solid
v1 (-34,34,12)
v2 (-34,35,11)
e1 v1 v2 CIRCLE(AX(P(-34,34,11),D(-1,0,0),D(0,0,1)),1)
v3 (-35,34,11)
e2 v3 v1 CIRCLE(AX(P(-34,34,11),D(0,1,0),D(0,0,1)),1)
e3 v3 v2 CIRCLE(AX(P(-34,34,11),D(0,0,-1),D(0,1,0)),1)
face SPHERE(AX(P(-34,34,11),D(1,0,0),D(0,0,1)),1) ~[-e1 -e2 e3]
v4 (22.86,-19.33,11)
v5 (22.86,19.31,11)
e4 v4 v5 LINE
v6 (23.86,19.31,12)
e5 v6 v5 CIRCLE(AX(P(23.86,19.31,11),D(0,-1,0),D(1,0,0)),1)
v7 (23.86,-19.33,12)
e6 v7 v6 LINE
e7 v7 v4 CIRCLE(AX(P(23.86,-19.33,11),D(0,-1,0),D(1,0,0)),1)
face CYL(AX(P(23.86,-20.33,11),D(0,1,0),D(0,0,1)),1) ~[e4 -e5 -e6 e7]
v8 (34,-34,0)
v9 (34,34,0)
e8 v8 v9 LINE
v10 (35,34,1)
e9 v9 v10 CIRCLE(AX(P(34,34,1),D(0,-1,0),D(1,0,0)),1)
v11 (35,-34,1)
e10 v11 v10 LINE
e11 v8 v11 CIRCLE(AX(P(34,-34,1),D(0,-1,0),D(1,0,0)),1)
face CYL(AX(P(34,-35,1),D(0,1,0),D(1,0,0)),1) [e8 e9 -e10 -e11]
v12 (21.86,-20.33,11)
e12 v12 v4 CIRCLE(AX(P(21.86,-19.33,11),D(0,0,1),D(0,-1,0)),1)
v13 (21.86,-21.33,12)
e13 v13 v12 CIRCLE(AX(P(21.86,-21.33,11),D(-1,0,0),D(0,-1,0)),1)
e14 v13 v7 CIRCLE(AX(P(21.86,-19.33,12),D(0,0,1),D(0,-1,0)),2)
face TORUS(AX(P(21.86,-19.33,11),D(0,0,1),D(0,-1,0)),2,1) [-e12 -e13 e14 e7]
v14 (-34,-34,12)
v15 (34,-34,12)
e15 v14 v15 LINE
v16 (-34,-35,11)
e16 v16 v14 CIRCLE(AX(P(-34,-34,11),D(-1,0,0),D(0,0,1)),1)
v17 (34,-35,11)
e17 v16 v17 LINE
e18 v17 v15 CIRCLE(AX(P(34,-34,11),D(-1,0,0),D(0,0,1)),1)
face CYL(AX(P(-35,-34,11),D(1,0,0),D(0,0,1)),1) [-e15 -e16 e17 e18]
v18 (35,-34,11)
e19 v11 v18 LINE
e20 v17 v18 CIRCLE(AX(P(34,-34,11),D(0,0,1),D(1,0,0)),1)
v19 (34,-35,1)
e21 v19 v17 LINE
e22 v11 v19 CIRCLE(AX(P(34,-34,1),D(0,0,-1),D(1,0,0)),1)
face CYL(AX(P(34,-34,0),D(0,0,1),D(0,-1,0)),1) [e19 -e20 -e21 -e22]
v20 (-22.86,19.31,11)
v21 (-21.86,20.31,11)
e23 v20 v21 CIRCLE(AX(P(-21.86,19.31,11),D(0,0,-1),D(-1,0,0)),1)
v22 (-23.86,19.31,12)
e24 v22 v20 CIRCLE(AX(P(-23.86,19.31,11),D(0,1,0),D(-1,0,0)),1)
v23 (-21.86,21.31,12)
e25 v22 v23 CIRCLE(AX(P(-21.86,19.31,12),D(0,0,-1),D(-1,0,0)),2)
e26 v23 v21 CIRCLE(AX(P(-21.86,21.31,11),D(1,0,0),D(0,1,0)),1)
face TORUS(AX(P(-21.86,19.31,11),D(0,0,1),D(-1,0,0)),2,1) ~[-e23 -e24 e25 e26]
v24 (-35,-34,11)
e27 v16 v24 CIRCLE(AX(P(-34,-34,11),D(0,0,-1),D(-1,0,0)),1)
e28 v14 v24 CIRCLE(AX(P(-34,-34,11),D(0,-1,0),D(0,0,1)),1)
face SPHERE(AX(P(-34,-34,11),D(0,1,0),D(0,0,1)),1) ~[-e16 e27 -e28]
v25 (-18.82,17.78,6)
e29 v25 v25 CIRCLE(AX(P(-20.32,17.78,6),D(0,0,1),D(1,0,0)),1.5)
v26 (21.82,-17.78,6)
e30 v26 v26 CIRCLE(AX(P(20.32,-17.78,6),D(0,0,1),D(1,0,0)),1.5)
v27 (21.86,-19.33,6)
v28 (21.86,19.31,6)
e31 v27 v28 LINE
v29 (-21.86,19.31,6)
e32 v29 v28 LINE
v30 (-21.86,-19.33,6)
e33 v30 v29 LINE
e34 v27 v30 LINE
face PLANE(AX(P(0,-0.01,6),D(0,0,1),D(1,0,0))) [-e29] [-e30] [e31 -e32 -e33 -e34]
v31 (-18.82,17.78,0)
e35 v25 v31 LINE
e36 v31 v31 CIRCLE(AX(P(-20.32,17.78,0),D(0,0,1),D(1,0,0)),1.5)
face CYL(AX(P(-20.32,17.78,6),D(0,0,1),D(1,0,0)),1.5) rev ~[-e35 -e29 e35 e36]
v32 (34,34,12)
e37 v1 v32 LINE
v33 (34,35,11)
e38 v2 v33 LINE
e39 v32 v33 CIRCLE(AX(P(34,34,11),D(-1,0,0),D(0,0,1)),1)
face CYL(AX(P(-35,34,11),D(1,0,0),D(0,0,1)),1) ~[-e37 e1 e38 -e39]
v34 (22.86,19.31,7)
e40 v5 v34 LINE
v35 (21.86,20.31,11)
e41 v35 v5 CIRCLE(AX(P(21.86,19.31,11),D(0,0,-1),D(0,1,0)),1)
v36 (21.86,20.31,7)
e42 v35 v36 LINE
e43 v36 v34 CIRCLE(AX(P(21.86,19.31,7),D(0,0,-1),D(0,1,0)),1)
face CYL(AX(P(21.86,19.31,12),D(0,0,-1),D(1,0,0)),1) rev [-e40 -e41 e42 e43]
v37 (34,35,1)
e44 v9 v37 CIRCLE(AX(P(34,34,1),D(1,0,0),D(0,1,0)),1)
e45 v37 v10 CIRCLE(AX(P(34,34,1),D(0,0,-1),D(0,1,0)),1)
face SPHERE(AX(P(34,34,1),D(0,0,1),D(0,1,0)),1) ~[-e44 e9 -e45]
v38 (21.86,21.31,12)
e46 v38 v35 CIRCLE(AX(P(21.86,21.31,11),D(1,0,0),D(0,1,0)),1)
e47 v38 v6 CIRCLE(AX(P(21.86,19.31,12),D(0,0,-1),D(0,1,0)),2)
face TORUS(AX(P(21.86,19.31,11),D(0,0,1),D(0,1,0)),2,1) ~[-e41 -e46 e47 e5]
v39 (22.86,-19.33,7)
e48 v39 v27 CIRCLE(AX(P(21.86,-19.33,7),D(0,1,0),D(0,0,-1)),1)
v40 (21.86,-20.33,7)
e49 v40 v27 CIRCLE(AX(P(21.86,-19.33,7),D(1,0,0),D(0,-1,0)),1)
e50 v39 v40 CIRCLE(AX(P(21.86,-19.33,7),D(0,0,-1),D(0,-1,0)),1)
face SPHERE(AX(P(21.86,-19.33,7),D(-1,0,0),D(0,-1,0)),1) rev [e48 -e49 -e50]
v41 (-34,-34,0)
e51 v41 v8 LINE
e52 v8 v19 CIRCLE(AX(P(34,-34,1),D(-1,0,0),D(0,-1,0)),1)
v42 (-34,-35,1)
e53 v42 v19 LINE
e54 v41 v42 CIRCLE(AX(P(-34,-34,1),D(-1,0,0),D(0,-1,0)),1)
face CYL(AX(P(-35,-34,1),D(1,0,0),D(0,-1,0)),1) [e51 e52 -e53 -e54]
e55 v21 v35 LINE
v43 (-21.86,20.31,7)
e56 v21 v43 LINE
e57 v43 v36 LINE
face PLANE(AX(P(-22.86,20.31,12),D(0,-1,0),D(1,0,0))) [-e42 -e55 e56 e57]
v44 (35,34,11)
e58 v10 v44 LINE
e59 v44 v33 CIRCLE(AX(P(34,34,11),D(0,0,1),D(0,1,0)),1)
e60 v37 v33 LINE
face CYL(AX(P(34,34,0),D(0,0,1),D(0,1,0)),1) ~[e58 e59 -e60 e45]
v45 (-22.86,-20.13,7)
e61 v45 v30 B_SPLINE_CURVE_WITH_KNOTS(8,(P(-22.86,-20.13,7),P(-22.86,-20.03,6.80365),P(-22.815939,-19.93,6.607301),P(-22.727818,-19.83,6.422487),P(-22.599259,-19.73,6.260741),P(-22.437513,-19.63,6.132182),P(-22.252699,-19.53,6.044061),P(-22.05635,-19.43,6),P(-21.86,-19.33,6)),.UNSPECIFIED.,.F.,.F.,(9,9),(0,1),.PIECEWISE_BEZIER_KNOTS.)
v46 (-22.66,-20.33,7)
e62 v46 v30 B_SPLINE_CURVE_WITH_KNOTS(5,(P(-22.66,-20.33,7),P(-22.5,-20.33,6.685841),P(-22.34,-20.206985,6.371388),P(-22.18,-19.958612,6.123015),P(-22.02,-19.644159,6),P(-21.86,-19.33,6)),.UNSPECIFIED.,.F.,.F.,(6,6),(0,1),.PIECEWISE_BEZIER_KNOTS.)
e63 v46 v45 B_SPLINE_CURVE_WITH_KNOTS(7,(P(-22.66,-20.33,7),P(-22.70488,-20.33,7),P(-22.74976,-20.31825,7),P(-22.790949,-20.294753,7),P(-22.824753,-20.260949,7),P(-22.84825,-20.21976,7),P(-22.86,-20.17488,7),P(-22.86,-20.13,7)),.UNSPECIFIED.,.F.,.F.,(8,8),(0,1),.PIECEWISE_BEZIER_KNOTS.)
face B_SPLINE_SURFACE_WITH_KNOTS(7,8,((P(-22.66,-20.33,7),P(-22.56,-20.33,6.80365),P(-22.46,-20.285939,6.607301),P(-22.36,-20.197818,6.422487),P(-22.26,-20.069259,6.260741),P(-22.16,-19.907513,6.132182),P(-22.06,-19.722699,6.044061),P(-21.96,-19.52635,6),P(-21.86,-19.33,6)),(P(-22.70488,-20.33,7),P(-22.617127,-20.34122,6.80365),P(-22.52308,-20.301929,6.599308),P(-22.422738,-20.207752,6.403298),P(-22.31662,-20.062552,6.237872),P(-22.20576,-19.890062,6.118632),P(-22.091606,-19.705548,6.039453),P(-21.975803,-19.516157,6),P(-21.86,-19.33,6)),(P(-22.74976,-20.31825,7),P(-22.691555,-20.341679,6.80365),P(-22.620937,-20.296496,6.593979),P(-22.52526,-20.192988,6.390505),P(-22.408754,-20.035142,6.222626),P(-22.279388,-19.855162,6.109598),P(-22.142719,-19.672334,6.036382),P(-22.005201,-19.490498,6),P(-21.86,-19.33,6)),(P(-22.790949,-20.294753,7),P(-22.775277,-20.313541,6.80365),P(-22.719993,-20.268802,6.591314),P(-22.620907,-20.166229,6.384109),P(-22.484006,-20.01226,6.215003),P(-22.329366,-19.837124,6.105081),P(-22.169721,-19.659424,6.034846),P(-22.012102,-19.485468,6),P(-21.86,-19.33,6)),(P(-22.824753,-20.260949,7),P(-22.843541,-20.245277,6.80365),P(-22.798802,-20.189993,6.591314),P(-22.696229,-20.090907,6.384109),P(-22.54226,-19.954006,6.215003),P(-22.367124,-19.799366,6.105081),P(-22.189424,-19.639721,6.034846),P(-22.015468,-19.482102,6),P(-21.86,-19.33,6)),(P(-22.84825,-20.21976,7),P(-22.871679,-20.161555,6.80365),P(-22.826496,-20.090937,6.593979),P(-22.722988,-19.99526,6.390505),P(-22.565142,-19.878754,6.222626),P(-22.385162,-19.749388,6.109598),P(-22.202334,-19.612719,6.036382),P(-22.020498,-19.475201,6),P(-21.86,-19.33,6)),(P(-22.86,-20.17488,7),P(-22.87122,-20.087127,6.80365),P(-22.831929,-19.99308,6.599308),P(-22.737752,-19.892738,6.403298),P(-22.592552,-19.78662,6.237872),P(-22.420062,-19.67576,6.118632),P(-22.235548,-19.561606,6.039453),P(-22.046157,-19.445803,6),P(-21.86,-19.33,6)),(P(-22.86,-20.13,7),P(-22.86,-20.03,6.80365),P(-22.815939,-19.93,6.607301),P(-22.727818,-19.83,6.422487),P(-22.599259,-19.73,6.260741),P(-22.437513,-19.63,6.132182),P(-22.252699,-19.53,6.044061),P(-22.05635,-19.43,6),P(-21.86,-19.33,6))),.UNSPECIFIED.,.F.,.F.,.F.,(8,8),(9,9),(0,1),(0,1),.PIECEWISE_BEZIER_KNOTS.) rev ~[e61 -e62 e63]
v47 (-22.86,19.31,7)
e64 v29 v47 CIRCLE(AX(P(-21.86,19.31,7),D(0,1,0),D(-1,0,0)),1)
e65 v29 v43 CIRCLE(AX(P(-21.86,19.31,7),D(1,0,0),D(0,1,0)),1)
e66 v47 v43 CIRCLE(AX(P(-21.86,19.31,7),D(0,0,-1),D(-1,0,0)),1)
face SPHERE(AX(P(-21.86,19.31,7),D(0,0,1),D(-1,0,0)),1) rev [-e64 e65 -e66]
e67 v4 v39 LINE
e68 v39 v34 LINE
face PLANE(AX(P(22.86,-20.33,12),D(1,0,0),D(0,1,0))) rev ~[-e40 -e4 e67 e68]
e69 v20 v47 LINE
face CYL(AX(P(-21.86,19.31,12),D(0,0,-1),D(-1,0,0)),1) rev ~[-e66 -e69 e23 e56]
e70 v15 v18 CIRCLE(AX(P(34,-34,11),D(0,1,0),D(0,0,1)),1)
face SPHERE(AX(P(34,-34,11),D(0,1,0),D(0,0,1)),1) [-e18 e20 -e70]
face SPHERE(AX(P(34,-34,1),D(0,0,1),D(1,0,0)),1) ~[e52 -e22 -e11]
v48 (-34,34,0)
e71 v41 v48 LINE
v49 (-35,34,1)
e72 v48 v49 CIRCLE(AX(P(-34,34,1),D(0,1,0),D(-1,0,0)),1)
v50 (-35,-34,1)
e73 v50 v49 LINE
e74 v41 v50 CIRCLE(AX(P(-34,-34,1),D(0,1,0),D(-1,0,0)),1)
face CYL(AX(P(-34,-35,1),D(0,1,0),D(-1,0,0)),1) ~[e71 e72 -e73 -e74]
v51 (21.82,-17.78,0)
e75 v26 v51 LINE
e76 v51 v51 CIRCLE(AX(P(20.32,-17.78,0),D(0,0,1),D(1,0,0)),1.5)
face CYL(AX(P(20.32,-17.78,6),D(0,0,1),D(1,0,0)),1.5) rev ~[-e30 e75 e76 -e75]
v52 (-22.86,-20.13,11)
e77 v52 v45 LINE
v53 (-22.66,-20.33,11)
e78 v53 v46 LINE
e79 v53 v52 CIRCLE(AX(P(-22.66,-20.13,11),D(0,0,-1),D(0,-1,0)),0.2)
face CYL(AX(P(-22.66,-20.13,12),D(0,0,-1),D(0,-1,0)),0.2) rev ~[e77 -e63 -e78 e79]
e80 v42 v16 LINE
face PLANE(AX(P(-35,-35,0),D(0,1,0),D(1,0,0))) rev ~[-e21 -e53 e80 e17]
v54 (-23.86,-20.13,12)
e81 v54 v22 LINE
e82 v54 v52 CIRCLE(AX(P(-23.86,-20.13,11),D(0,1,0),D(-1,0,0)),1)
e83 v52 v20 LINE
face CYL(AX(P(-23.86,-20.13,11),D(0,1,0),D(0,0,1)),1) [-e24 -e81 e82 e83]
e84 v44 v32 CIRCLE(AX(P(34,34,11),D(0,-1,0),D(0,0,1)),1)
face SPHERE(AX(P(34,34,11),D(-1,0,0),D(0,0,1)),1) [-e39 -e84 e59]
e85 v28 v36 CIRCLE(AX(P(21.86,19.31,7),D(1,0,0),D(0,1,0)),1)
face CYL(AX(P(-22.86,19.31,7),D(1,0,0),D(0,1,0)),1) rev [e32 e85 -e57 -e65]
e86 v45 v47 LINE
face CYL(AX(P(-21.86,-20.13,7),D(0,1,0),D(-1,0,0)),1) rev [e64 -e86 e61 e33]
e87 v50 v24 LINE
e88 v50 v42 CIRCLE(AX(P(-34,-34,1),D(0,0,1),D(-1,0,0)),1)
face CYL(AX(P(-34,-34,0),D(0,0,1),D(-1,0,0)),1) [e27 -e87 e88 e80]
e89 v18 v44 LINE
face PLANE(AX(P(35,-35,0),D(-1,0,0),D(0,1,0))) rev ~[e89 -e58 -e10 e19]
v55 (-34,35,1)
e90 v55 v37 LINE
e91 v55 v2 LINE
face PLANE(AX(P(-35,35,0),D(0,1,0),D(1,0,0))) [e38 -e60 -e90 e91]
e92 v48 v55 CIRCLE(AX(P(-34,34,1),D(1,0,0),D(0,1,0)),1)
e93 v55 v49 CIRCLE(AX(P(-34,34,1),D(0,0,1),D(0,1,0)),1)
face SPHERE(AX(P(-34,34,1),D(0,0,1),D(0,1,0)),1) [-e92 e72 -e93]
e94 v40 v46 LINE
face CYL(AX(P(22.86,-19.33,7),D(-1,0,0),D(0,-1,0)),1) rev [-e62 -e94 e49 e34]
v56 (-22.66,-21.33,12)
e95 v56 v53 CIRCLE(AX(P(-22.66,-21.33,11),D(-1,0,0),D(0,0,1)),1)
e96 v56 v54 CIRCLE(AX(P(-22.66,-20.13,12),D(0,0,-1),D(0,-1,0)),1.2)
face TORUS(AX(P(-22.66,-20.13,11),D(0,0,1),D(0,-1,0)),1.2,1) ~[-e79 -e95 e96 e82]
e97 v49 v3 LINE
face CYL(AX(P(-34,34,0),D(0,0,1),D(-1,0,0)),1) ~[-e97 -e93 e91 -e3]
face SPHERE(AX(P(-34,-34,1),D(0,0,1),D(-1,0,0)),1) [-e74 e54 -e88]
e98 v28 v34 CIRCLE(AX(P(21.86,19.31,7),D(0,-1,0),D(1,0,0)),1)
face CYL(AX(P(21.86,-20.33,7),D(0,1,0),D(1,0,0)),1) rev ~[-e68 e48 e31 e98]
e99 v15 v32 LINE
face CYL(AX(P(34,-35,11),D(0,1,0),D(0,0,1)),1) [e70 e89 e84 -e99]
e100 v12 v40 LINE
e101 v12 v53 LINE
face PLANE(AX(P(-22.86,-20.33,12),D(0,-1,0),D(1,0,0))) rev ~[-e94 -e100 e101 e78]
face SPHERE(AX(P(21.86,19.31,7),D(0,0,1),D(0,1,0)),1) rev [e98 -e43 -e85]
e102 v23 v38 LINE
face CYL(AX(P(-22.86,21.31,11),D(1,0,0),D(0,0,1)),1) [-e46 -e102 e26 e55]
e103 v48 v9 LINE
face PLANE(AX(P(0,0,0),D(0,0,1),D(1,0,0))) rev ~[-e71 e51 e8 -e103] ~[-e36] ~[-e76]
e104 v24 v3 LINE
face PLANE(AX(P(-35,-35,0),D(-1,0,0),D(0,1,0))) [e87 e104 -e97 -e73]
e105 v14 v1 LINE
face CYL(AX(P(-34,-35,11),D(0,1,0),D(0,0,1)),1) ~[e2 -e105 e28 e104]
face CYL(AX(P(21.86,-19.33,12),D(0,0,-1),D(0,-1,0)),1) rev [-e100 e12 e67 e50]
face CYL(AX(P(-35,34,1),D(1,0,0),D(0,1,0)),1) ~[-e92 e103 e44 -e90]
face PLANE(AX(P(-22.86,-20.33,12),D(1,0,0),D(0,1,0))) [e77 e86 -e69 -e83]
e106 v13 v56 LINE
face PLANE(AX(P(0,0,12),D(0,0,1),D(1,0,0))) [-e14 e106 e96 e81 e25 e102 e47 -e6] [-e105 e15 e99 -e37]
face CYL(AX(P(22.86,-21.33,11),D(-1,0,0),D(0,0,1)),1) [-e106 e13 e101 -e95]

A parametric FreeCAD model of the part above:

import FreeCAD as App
import Part
import Sketcher


def edges_at(feature, points):
    """Names of the edges that pass closest to the given points."""
    edges = feature.Shape.Edges
    near = lambda p: min(range(len(edges)), key=lambda i: edges[i].distToShape(Part.Vertex(*p))[0])
    return sorted({f"Edge{near(p) + 1}" for p in points})

doc = App.newDocument("Part")
body = doc.addObject("PartDesign::Body", "Body")

sketch1 = body.newObject("Sketcher::SketchObject", "Sketch")
sketch1.AttachmentSupport = (doc.getObject("XY_Plane"), [""])
sketch1.MapMode = "FlatFace"
sketch1.addGeometry(Part.LineSegment(App.Vector(-35, 35, 0), App.Vector(-35, -35, 0)), False)
sketch1.addGeometry(Part.LineSegment(App.Vector(-35, -35, 0), App.Vector(35, -35, 0)), False)
sketch1.addGeometry(Part.LineSegment(App.Vector(35, -35, 0), App.Vector(35, 35, 0)), False)
sketch1.addGeometry(Part.LineSegment(App.Vector(35, 35, 0), App.Vector(-35, 35, 0)), False)
sketch1.addConstraint(Sketcher.Constraint("Coincident", 0, 2, 1, 1))
sketch1.addConstraint(Sketcher.Constraint("Coincident", 1, 2, 2, 1))
sketch1.addConstraint(Sketcher.Constraint("Coincident", 2, 2, 3, 1))
sketch1.addConstraint(Sketcher.Constraint("Coincident", 3, 2, 0, 1))
sketch1.addConstraint(Sketcher.Constraint("Vertical", 0))
sketch1.addConstraint(Sketcher.Constraint("Horizontal", 1))
sketch1.addConstraint(Sketcher.Constraint("Vertical", 2))
sketch1.addConstraint(Sketcher.Constraint("Horizontal", 3))
sketch1.addConstraint(Sketcher.Constraint("Symmetric", 0, 2, 2, 2, -1, 1))
sketch1.addConstraint(Sketcher.Constraint("Equal", 3, 0))
sketch1.addConstraint(Sketcher.Constraint("DistanceX", 1, 1, 1, 2, 70.0))
pad1 = body.newObject("PartDesign::Pad", "Pad")
pad1.Profile = sketch1
pad1.Length = 12

sketch2 = body.newObject("Sketcher::SketchObject", "Sketch001")
sketch2.AttachmentSupport = (doc.getObject("XY_Plane"), [""])
sketch2.MapMode = "FlatFace"
sketch2.AttachmentOffset = App.Placement(App.Vector(0, 0, 12), App.Rotation())
sketch2.addGeometry(Part.LineSegment(App.Vector(-23, 20, 0), App.Vector(-23, -20, 0)), False)
sketch2.addGeometry(Part.LineSegment(App.Vector(-23, -20, 0), App.Vector(23, -20, 0)), False)
sketch2.addGeometry(Part.LineSegment(App.Vector(23, -20, 0), App.Vector(23, 20, 0)), False)
sketch2.addGeometry(Part.LineSegment(App.Vector(23, 20, 0), App.Vector(-23, 20, 0)), False)
sketch2.addConstraint(Sketcher.Constraint("Coincident", 0, 2, 1, 1))
sketch2.addConstraint(Sketcher.Constraint("Coincident", 1, 2, 2, 1))
sketch2.addConstraint(Sketcher.Constraint("Coincident", 2, 2, 3, 1))
sketch2.addConstraint(Sketcher.Constraint("Coincident", 3, 2, 0, 1))
sketch2.addConstraint(Sketcher.Constraint("Vertical", 0))
sketch2.addConstraint(Sketcher.Constraint("Horizontal", 1))
sketch2.addConstraint(Sketcher.Constraint("Vertical", 2))
sketch2.addConstraint(Sketcher.Constraint("Horizontal", 3))
sketch2.addConstraint(Sketcher.Constraint("DistanceX", 1, 1, 1, 2, 45.72))
sketch2.addConstraint(Sketcher.Constraint("DistanceY", 0, 2, 0, 1, 40.64))
sketch2.addConstraint(Sketcher.Constraint("DistanceX", 0, 2, -1, 1, 22.86))
sketch2.addConstraint(Sketcher.Constraint("DistanceY", 0, 2, -1, 1, 20.33))
pocket1 = body.newObject("PartDesign::Pocket", "Pocket")
pocket1.Profile = sketch2
pocket1.Length = 6
doc.recompute()

fillet = body.newObject("PartDesign::Fillet", "Fillet")
fillet.Base = (pocket1, edges_at(pocket1, [(-22.86, -20.33, 9)]))
fillet.Radius = 0.2
doc.recompute()

fillet2 = body.newObject("PartDesign::Fillet", "Fillet001")
fillet2.Base = (fillet, ["Edge1"])
fillet2.UseAllEdges = True
fillet2.Radius = 1

sketch3 = body.newObject("Sketcher::SketchObject", "Sketch002")
sketch3.AttachmentSupport = (doc.getObject("XY_Plane"), [""])
sketch3.MapMode = "FlatFace"
sketch3.AttachmentOffset = App.Placement(App.Vector(0, 0, 6), App.Rotation())
sketch3.addGeometry(Part.Circle(App.Vector(-20.3, 17.8, 0), App.Vector(0, 0, 1), 1.5), False)
sketch3.addGeometry(Part.Circle(App.Vector(20.3, -17.8, 0), App.Vector(0, 0, 1), 1.5), False)
sketch3.addConstraint(Sketcher.Constraint("Equal", 0, 1))
sketch3.addConstraint(Sketcher.Constraint("Symmetric", 0, 3, 1, 3, -1, 1))
sketch3.addConstraint(Sketcher.Constraint("Diameter", 0, 3.0))
sketch3.addConstraint(Sketcher.Constraint("DistanceX", 0, 3, -1, 1, 20.32))
sketch3.addConstraint(Sketcher.Constraint("DistanceY", -1, 1, 0, 3, 17.78))
pocket2 = body.newObject("PartDesign::Pocket", "Pocket001")
pocket2.Profile = sketch3
pocket2.Length = 25

doc.recompute()
